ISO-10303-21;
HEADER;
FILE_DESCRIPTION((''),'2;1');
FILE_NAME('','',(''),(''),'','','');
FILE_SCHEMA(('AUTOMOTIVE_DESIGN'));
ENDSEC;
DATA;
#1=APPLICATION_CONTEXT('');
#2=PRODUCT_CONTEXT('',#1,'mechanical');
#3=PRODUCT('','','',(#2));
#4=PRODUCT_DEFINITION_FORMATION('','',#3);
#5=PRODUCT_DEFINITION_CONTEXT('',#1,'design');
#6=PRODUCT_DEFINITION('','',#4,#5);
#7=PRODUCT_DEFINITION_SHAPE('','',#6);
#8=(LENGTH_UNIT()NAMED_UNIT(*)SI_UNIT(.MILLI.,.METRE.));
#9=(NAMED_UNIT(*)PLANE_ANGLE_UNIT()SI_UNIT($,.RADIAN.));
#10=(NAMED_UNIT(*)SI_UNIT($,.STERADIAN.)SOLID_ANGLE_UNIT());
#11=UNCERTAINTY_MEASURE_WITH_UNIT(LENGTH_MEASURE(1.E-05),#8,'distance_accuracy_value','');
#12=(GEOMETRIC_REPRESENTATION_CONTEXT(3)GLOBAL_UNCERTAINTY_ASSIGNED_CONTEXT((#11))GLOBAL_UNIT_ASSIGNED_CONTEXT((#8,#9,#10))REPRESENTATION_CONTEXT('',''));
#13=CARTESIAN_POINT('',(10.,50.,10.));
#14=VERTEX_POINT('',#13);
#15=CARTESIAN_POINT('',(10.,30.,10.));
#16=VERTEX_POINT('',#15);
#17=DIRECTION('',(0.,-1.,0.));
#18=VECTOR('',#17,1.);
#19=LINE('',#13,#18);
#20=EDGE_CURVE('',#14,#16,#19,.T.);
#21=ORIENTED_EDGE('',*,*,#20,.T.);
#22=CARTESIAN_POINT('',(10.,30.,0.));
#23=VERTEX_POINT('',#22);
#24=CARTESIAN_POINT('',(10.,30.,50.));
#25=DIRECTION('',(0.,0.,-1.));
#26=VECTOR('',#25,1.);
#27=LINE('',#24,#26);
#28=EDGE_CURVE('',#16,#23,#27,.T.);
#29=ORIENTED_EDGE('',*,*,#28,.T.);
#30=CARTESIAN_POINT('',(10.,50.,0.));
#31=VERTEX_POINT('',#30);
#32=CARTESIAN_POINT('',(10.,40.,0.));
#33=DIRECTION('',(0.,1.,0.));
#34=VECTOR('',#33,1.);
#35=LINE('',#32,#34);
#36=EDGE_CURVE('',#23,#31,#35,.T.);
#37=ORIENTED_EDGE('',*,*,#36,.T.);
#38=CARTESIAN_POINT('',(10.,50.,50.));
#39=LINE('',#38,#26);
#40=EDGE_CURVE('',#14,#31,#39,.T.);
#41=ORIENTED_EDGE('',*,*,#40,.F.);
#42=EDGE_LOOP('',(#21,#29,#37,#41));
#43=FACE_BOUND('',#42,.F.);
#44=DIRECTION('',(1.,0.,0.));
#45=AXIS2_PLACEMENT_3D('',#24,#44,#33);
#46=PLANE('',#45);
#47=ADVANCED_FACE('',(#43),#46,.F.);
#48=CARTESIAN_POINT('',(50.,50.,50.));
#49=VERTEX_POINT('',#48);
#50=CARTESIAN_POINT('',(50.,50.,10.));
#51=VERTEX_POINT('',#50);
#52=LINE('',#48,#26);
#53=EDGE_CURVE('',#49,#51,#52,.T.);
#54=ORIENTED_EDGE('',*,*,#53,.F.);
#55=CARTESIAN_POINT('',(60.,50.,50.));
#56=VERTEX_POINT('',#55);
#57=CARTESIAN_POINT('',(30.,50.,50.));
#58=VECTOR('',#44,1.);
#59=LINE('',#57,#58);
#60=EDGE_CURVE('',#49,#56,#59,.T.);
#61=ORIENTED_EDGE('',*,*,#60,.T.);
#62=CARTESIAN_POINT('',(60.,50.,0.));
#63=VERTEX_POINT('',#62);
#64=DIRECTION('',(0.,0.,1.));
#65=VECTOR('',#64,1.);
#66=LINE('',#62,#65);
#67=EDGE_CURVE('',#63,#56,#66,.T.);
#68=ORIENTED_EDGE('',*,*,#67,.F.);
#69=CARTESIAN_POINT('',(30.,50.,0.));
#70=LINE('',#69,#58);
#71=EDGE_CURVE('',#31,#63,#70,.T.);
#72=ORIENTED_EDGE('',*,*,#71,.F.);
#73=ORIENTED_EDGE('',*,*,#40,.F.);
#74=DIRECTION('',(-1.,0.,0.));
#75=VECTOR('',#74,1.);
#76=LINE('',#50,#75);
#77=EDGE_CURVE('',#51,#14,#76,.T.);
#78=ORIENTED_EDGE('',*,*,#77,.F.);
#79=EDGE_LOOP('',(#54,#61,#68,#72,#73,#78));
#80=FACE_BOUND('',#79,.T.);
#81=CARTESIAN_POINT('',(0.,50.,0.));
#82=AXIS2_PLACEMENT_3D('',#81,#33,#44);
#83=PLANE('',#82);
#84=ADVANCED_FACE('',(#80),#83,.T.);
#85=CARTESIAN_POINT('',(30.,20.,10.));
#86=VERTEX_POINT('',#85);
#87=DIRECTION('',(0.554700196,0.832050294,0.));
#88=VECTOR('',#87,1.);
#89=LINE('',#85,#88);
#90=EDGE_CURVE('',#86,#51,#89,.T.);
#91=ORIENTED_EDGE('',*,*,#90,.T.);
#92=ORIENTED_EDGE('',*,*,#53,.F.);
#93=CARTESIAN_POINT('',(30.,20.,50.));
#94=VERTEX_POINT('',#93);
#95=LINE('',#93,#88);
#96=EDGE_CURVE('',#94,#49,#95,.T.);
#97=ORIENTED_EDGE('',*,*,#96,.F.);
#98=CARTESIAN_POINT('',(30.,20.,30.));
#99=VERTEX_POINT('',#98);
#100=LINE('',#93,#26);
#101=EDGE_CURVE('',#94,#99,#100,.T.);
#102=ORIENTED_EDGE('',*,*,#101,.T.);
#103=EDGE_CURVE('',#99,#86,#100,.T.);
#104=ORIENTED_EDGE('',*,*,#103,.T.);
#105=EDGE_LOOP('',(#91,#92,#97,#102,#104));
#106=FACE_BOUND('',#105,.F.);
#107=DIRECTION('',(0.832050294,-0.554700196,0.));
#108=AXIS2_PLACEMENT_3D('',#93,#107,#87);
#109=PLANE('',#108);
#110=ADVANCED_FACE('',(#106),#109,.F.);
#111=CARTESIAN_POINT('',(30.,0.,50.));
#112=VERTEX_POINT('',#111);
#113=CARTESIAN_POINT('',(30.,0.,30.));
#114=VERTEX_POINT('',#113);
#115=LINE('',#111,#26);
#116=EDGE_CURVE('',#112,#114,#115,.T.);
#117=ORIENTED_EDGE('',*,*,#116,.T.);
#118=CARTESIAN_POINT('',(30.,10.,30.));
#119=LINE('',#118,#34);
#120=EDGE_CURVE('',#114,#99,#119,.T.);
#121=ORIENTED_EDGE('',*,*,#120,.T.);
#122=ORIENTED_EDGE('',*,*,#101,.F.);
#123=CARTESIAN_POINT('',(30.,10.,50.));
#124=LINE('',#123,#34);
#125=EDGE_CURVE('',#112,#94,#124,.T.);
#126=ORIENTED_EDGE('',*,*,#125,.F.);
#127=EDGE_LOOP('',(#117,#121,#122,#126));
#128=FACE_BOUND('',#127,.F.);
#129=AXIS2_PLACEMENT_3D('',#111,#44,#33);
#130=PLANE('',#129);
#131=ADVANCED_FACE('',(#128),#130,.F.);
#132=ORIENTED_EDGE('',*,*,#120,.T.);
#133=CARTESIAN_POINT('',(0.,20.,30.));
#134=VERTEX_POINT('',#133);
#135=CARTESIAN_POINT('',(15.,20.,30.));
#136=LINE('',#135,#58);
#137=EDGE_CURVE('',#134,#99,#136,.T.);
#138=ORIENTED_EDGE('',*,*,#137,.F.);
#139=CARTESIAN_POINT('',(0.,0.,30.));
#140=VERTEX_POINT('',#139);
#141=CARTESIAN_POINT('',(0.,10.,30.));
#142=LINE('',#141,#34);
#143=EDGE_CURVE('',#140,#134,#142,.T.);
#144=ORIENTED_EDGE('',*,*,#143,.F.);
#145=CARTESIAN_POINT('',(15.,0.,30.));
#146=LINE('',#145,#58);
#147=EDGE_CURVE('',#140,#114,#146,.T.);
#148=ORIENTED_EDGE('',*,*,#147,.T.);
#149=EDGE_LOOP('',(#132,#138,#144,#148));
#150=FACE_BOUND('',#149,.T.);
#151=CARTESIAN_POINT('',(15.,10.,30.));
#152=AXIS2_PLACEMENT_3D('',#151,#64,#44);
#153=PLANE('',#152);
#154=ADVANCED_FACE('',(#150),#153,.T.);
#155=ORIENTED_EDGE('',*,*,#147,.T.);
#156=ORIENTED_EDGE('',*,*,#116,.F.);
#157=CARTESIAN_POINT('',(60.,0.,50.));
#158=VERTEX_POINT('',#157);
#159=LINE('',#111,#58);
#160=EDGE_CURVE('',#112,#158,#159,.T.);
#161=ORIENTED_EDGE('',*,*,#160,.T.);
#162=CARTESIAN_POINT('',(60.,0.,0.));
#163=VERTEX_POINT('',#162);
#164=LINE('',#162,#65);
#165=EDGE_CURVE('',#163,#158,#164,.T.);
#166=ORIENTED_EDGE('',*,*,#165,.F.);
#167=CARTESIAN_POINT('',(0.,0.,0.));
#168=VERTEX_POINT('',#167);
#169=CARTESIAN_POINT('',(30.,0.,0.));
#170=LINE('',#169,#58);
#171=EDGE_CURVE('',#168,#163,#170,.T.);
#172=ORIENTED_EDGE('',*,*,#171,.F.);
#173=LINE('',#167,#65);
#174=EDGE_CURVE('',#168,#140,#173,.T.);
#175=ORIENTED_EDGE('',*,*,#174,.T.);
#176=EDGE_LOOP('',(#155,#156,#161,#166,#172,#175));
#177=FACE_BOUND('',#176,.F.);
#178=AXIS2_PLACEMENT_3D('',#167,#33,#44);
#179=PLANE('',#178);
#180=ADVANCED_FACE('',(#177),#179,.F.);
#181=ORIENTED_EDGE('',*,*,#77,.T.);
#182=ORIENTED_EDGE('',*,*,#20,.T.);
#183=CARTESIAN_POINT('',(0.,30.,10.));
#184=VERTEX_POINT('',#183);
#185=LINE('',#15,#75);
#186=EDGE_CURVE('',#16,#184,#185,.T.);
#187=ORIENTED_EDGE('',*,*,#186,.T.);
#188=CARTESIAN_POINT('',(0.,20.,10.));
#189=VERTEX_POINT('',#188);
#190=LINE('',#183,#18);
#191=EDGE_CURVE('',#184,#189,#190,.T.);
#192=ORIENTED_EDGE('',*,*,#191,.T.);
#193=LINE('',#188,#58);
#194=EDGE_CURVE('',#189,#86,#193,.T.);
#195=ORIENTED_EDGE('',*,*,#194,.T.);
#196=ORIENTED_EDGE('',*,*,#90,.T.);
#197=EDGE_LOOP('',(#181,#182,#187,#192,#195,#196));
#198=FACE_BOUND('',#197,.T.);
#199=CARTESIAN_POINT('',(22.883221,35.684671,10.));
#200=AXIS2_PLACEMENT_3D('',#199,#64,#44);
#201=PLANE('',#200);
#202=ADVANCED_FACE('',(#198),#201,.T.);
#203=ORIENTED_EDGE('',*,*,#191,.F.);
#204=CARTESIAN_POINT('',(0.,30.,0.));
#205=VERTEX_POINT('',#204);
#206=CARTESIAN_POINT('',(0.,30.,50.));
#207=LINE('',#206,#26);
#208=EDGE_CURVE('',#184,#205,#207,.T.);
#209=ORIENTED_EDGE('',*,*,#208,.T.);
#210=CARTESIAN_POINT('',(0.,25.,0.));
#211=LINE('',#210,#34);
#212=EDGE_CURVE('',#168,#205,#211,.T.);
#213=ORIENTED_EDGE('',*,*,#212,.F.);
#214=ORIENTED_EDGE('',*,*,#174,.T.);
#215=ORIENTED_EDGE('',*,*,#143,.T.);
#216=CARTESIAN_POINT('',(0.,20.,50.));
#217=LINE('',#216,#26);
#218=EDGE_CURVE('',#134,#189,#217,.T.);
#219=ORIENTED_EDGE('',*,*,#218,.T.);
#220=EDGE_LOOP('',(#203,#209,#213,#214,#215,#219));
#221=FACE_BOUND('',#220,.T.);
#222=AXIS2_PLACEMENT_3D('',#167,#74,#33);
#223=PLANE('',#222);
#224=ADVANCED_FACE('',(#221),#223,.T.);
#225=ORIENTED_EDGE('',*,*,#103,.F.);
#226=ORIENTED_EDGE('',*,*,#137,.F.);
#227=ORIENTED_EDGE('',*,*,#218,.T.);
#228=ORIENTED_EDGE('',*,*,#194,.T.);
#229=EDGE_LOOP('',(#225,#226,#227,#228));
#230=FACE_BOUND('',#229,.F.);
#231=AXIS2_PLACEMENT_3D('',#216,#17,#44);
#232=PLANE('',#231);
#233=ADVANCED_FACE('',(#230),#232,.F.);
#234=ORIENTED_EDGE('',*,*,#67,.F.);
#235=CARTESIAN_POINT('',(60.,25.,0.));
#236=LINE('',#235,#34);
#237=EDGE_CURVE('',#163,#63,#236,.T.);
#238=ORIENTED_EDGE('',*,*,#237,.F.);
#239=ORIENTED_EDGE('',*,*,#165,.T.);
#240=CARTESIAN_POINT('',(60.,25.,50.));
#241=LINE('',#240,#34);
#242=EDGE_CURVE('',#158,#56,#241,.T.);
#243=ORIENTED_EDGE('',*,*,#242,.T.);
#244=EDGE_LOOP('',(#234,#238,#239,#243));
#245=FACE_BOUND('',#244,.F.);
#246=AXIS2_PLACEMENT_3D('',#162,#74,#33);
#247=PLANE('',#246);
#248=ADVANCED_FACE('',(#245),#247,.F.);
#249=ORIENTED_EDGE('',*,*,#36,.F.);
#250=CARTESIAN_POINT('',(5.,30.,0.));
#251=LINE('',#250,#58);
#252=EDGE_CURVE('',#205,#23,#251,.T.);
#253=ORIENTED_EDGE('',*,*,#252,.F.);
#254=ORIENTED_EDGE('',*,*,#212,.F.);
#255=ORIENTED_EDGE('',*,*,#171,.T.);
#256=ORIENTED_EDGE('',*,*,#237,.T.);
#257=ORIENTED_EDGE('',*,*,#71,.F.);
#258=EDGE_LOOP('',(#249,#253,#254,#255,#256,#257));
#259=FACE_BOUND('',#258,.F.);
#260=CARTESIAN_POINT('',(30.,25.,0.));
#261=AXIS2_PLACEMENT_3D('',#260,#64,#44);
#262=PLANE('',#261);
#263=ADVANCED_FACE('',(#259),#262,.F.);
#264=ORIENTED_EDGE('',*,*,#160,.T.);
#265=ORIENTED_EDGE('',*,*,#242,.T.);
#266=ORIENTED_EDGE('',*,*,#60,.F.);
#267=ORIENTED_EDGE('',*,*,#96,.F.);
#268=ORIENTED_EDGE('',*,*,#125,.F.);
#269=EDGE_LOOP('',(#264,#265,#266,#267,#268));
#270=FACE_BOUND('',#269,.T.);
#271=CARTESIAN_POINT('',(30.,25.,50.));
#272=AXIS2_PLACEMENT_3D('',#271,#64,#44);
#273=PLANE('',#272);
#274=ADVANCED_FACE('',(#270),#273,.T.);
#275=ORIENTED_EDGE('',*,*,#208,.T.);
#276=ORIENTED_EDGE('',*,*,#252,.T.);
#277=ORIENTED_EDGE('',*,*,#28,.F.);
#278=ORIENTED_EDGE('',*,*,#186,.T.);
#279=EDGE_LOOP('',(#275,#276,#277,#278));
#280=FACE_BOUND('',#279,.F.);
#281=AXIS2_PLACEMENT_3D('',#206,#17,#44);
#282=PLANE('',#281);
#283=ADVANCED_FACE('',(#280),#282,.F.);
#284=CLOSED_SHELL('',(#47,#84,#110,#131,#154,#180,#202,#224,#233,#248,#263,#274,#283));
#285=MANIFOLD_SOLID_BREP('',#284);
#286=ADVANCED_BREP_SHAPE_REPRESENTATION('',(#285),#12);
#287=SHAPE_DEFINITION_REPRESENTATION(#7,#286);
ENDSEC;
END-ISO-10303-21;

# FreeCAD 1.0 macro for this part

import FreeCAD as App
import Part
import Sketcher
from FreeCAD import Vector


def add_polygon(sketch, points):
    """Adds a closed chain of lines whose ends are joined by coincident constraints."""
    first, n = sketch.GeometryCount, len(points)
    for a, b in zip(points, points[1:] + points[:1]):
        sketch.addGeometry(Part.LineSegment(App.Vector(*a, 0), App.Vector(*b, 0)), False)
    for i in range(n):
        sketch.addConstraint(Sketcher.Constraint("Coincident", first + i, 2, first + (i + 1) % n, 1))

doc = App.newDocument("Part")
body = doc.addObject("PartDesign::Body", "Body")

sketch1 = body.newObject("Sketcher::SketchObject", "Sketch")
sketch1.AttachmentSupport = (doc.getObject("XY_Plane"), [""])
sketch1.MapMode = "FlatFace"
add_polygon(sketch1, [(0, 50), (0, 0), (60, 0), (60, 50)])
sketch1.addConstraint(Sketcher.Constraint("Vertical", 0))
sketch1.addConstraint(Sketcher.Constraint("Horizontal", 1))
sketch1.addConstraint(Sketcher.Constraint("Vertical", 2))
sketch1.addConstraint(Sketcher.Constraint("Horizontal", 3))
sketch1.addConstraint(Sketcher.Constraint("Coincident", 0, 2, -1, 1))
sketch1.addConstraint(Sketcher.Constraint("DistanceX", 1, 1, 1, 2, 60.0))
sketch1.addConstraint(Sketcher.Constraint("DistanceY", 0, 2, 0, 1, 50.0))
pad1 = body.newObject("PartDesign::Pad", "Pad")
pad1.Profile = sketch1
pad1.Length = 50

sketch2 = body.newObject("Sketcher::SketchObject", "Sketch001")
sketch2.AttachmentSupport = (doc.getObject("XY_Plane"), [""])
sketch2.MapMode = "FlatFace"
sketch2.AttachmentOffset = App.Placement(Vector(0, 0, 50), App.Rotation())
add_polygon(sketch2, [(0, 50), (0, 30), (10, 30), (10, 50)])
sketch2.addConstraint(Sketcher.Constraint("Vertical", 0))
sketch2.addConstraint(Sketcher.Constraint("Horizontal", 1))
sketch2.addConstraint(Sketcher.Constraint("Vertical", 2))
sketch2.addConstraint(Sketcher.Constraint("Horizontal", 3))
sketch2.addConstraint(Sketcher.Constraint("PointOnObject", 0, 2, -2))
sketch2.addConstraint(Sketcher.Constraint("DistanceX", 1, 1, 1, 2, 10.0))
sketch2.addConstraint(Sketcher.Constraint("DistanceY", 0, 2, 0, 1, 20.0))
sketch2.addConstraint(Sketcher.Constraint("DistanceY", -1, 1, 0, 2, 30.0))
pocket1 = body.newObject("PartDesign::Pocket", "Pocket")
pocket1.Profile = sketch2
pocket1.Length = 50

sketch3 = body.newObject("Sketcher::SketchObject", "Sketch002")
sketch3.AttachmentSupport = (doc.getObject("XY_Plane"), [""])
sketch3.MapMode = "FlatFace"
sketch3.AttachmentOffset = App.Placement(Vector(0, 0, 50), App.Rotation())
add_polygon(sketch3, [(0, 20), (0, 0), (30, 0), (30, 20)])
sketch3.addConstraint(Sketcher.Constraint("Vertical", 0))
sketch3.addConstraint(Sketcher.Constraint("Horizontal", 1))
sketch3.addConstraint(Sketcher.Constraint("Vertical", 2))
sketch3.addConstraint(Sketcher.Constraint("Horizontal", 3))
sketch3.addConstraint(Sketcher.Constraint("Coincident", 0, 2, -1, 1))
sketch3.addConstraint(Sketcher.Constraint("DistanceX", 1, 1, 1, 2, 30.0))
sketch3.addConstraint(Sketcher.Constraint("DistanceY", 0, 2, 0, 1, 20.0))
pocket2 = body.newObject("PartDesign::Pocket", "Pocket001")
pocket2.Profile = sketch3
pocket2.Length = 20

sketch4 = body.newObject("Sketcher::SketchObject", "Sketch003")
sketch4.AttachmentSupport = (doc.getObject("XY_Plane"), [""])
sketch4.MapMode = "FlatFace"
sketch4.AttachmentOffset = App.Placement(Vector(0, 0, 50), App.Rotation())
add_polygon(sketch4, [(30, 20), (50, 50), (10, 50), (10, 30), (0, 30), (0, 20)])
sketch4.addConstraint(Sketcher.Constraint("Horizontal", 1))
sketch4.addConstraint(Sketcher.Constraint("Vertical", 2))
sketch4.addConstraint(Sketcher.Constraint("Horizontal", 3))
sketch4.addConstraint(Sketcher.Constraint("Vertical", 4))
sketch4.addConstraint(Sketcher.Constraint("Horizontal", 5))
sketch4.addConstraint(Sketcher.Constraint("PointOnObject", 3, 2, -2))
sketch4.addConstraint(Sketcher.Constraint("Equal", 3, 4))
sketch4.addConstraint(Sketcher.Constraint("DistanceX", 1, 2, 1, 1, 40.0))
sketch4.addConstraint(Sketcher.Constraint("DistanceX", 3, 2, 3, 1, 10.0))
sketch4.addConstraint(Sketcher.Constraint("DistanceX", 5, 1, 5, 2, 30.0))
sketch4.addConstraint(Sketcher.Constraint("DistanceY", 2, 2, 2, 1, 20.0))
sketch4.addConstraint(Sketcher.Constraint("DistanceY", -1, 1, 0, 2, 50.0))
pocket3 = body.newObject("PartDesign::Pocket", "Pocket002")
pocket3.Profile = sketch4
pocket3.Length = 40

doc.recompute()
